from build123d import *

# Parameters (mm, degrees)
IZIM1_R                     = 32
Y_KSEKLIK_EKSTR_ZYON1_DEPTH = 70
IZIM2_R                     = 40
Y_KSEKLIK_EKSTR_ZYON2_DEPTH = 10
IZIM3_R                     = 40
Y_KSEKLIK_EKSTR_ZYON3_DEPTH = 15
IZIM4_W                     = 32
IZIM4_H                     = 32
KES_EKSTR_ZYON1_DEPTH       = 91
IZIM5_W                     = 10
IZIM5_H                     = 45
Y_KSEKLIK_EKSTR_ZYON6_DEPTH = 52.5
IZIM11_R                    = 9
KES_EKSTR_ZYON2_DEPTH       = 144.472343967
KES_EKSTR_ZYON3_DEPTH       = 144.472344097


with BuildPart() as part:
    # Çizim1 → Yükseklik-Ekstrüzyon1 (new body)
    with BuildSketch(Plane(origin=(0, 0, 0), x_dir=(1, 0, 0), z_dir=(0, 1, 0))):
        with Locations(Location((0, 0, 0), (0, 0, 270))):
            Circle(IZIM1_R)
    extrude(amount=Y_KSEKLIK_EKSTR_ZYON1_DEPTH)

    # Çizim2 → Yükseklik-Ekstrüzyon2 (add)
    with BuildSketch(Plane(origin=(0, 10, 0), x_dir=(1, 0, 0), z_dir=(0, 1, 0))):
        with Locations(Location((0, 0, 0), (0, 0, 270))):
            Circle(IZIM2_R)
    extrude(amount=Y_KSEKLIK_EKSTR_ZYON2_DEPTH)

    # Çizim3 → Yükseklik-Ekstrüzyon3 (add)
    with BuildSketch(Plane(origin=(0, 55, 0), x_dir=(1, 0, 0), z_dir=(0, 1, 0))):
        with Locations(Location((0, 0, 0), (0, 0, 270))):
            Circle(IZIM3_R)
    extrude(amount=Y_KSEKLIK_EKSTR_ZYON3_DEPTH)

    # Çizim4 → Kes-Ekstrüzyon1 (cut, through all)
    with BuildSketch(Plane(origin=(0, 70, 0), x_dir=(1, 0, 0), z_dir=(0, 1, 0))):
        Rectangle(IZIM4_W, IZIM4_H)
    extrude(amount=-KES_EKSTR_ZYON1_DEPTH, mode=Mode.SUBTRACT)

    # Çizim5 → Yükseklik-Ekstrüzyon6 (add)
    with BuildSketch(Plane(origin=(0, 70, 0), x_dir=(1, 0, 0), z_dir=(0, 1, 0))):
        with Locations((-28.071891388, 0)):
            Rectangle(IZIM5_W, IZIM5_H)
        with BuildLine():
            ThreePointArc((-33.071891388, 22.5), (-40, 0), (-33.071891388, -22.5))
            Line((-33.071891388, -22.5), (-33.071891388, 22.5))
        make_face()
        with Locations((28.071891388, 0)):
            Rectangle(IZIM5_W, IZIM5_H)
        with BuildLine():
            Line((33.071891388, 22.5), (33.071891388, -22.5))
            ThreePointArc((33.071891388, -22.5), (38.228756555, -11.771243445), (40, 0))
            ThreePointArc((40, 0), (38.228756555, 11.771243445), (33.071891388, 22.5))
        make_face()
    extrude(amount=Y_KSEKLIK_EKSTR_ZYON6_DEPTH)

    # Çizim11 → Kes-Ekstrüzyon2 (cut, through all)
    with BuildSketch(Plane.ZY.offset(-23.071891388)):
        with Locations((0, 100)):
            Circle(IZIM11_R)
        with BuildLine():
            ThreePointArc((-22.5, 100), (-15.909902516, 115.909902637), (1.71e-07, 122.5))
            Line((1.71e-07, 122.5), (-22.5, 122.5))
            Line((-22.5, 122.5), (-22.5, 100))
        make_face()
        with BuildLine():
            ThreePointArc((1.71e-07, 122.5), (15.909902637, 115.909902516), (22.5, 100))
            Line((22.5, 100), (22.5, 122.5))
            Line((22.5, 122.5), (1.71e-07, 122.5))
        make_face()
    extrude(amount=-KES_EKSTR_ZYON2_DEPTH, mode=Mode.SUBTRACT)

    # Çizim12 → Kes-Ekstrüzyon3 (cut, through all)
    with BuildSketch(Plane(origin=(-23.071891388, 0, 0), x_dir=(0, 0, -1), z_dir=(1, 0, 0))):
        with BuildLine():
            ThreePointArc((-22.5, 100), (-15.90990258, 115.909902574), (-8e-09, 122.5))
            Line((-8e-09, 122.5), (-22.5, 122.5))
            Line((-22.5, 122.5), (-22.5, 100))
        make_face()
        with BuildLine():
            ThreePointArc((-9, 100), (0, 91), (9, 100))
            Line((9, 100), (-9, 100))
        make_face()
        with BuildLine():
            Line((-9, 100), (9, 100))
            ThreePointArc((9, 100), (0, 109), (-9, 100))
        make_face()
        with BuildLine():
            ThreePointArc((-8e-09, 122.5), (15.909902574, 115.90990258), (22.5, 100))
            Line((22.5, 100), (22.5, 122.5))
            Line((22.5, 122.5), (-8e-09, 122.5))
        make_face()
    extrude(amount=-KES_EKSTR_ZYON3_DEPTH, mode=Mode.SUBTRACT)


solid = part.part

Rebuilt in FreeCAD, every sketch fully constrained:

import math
import FreeCAD as App
import Part
import Sketcher
from FreeCAD import Vector

doc = App.newDocument("Part")
body = doc.addObject("PartDesign::Body", "Body")

# Sketch on XZ plane
sketch1 = body.newObject("Sketcher::SketchObject", "Sketch")
sketch1.AttachmentSupport = (doc.getObject("XZ_Plane"), [""])
sketch1.MapMode = "FlatFace"
sketch1.addGeometry(Part.Circle(Vector(0, 0, 0), Vector(0, 0, 1), 32), False)
sketch1.addConstraint(Sketcher.Constraint("Coincident", 0, 3, -1, 1))
sketch1.addConstraint(Sketcher.Constraint("Diameter", 0, 64.0))
pad1 = body.newObject("PartDesign::Pad", "Pad")
pad1.Profile = sketch1
pad1.Length = 70
pad1.Reversed = True

# Sketch on XZ plane
sketch2 = body.newObject("Sketcher::SketchObject", "Sketch001")
sketch2.AttachmentSupport = (doc.getObject("XZ_Plane"), [""])
sketch2.MapMode = "FlatFace"
sketch2.AttachmentOffset = App.Placement(Vector(0, 0, -10), App.Rotation())
sketch2.addGeometry(Part.Circle(Vector(0, 0, 0), Vector(0, 0, 1), 40), False)
sketch2.addConstraint(Sketcher.Constraint("Coincident", 0, 3, -1, 1))
sketch2.addConstraint(Sketcher.Constraint("Diameter", 0, 80.0))
pad2 = body.newObject("PartDesign::Pad", "Pad001")
pad2.Profile = sketch2
pad2.Length = 10
pad2.Reversed = True

# Sketch on XZ plane
sketch3 = body.newObject("Sketcher::SketchObject", "Sketch002")
sketch3.AttachmentSupport = (doc.getObject("XZ_Plane"), [""])
sketch3.MapMode = "FlatFace"
sketch3.AttachmentOffset = App.Placement(Vector(0, 0, -55), App.Rotation())
sketch3.addGeometry(Part.Circle(Vector(0, 0, 0), Vector(0, 0, 1), 40), False)
sketch3.addConstraint(Sketcher.Constraint("Coincident", 0, 3, -1, 1))
sketch3.addConstraint(Sketcher.Constraint("Diameter", 0, 80.0))
pad3 = body.newObject("PartDesign::Pad", "Pad002")
pad3.Profile = sketch3
pad3.Length = 15
pad3.Reversed = True

# Sketch on XZ plane
sketch4 = body.newObject("Sketcher::SketchObject", "Sketch003")
sketch4.AttachmentSupport = (doc.getObject("XZ_Plane"), [""])
sketch4.MapMode = "FlatFace"
sketch4.AttachmentOffset = App.Placement(Vector(0, 0, -70), App.Rotation())
sketch4.addGeometry(Part.LineSegment(Vector(-16, -16, 0), Vector(-16, 16, 0)), False)
sketch4.addGeometry(Part.LineSegment(Vector(-16, 16, 0), Vector(16, 16, 0)), False)
sketch4.addGeometry(Part.LineSegment(Vector(16, 16, 0), Vector(16, -16, 0)), False)
sketch4.addGeometry(Part.LineSegment(Vector(16, -16, 0), Vector(-16, -16, 0)), False)
sketch4.addConstraint(Sketcher.Constraint("Coincident", 0, 2, 1, 1))
sketch4.addConstraint(Sketcher.Constraint("Coincident", 1, 2, 2, 1))
sketch4.addConstraint(Sketcher.Constraint("Coincident", 2, 2, 3, 1))
sketch4.addConstraint(Sketcher.Constraint("Coincident", 3, 2, 0, 1))
sketch4.addConstraint(Sketcher.Constraint("Vertical", 0))
sketch4.addConstraint(Sketcher.Constraint("Horizontal", 1))
sketch4.addConstraint(Sketcher.Constraint("Vertical", 2))
sketch4.addConstraint(Sketcher.Constraint("Horizontal", 3))
sketch4.addConstraint(Sketcher.Constraint("Symmetric", 0, 2, 2, 2, -1, 1))
sketch4.addConstraint(Sketcher.Constraint("Equal", 3, 0))
sketch4.addConstraint(Sketcher.Constraint("DistanceX", 1, 1, 1, 2, 32.0))
pocket1 = body.newObject("PartDesign::Pocket", "Pocket")
pocket1.Profile = sketch4
pocket1.Type = "ThroughAll"
pocket1.Reversed = True

# Sketch on XZ plane
sketch5 = body.newObject("Sketcher::SketchObject", "Sketch004")
sketch5.AttachmentSupport = (doc.getObject("XZ_Plane"), [""])
sketch5.MapMode = "FlatFace"
sketch5.AttachmentOffset = App.Placement(Vector(0, 0, -70), App.Rotation())
sketch5.addGeometry(Part.LineSegment(Vector(-33, 22, 0), Vector(-23, 22, 0)), False)
sketch5.addGeometry(Part.LineSegment(Vector(-23, 22, 0), Vector(-23, -22, 0)), False)
sketch5.addGeometry(Part.LineSegment(Vector(-23, -22, 0), Vector(-33, -22, 0)), False)
sketch5.addGeometry(Part.ArcOfCircle(Part.Circle(Vector(0, 0, 0), Vector(0, 0, 1), 40), math.radians(146), math.radians(214)), False)
sketch5.addGeometry(Part.LineSegment(Vector(23, -22, 0), Vector(23, 22, 0)), False)
sketch5.addGeometry(Part.LineSegment(Vector(23, 22, 0), Vector(33, 22, 0)), False)
sketch5.addGeometry(Part.ArcOfCircle(Part.Circle(Vector(0, 0, 0), Vector(0, 0, 1), 40), math.radians(0), math.radians(34)), False)
sketch5.addGeometry(Part.ArcOfCircle(Part.Circle(Vector(0, 0, 0), Vector(0, 0, 1), 40), math.radians(-34), math.radians(0)), False)
sketch5.addGeometry(Part.LineSegment(Vector(33, -22, 0), Vector(23, -22, 0)), False)
sketch5.addConstraint(Sketcher.Constraint("Coincident", 0, 2, 1, 1))
sketch5.addConstraint(Sketcher.Constraint("Coincident", 1, 2, 2, 1))
sketch5.addConstraint(Sketcher.Constraint("Coincident", 2, 2, 3, 2))
sketch5.addConstraint(Sketcher.Constraint("Coincident", 3, 1, 0, 1))
sketch5.addConstraint(Sketcher.Constraint("Coincident", 4, 2, 5, 1))
sketch5.addConstraint(Sketcher.Constraint("Coincident", 5, 2, 6, 2))
sketch5.addConstraint(Sketcher.Constraint("Tangent", 6, 1, 7, 2))
sketch5.addConstraint(Sketcher.Constraint("Coincident", 7, 1, 8, 1))
sketch5.addConstraint(Sketcher.Constraint("Coincident", 8, 2, 4, 1))
sketch5.addConstraint(Sketcher.Constraint("Horizontal", 0))
sketch5.addConstraint(Sketcher.Constraint("Vertical", 1))
sketch5.addConstraint(Sketcher.Constraint("Horizontal", 2))
sketch5.addConstraint(Sketcher.Constraint("Vertical", 4))
sketch5.addConstraint(Sketcher.Constraint("Horizontal", 5))
sketch5.addConstraint(Sketcher.Constraint("Horizontal", 8))
sketch5.addConstraint(Sketcher.Constraint("Coincident", 3, 3, -1, 1))
sketch5.addConstraint(Sketcher.Constraint("Coincident", 6, 3, -1, 1))
sketch5.addConstraint(Sketcher.Constraint("Equal", 3, 6))
sketch5.addConstraint(Sketcher.Constraint("Equal", 6, 7))
sketch5.addConstraint(Sketcher.Constraint("Symmetric", 1, 2, 4, 2, -1, 1))
sketch5.addConstraint(Sketcher.Constraint("PointOnObject", 6, 1, -1))
sketch5.addConstraint(Sketcher.Constraint("Horizontal", 3, 1, 4, 2))
sketch5.addConstraint(Sketcher.Constraint("Horizontal", 2, 2, 7, 1))
sketch5.addConstraint(Sketcher.Constraint("Radius", 3, 40.0))
sketch5.addConstraint(Sketcher.Constraint("DistanceX", 0, 1, 0, 2, 10.0))
sketch5.addConstraint(Sketcher.Constraint("DistanceY", 1, 2, 1, 1, 45.0))
pad4 = body.newObject("PartDesign::Pad", "Pad003")
pad4.Profile = sketch5
pad4.Length = 52.5
pad4.Reversed = True

# Sketch on YZ plane
sketch6 = body.newObject("Sketcher::SketchObject", "Sketch005")
sketch6.AttachmentSupport = (doc.getObject("YZ_Plane"), [""])
sketch6.MapMode = "FlatFace"
sketch6.AttachmentOffset = App.Placement(Vector(0, 0, 23.071891), App.Rotation())
sketch6.addGeometry(Part.Circle(Vector(100, 0, 0), Vector(0, 0, 1), 9), False)
sketch6.addGeometry(Part.ArcOfCircle(Part.Circle(Vector(100, 0, 0), Vector(0, 0, 1), 23), math.radians(-90), math.radians(0)), False)
sketch6.addGeometry(Part.LineSegment(Vector(122, 0, 0), Vector(122, -22, 0)), False)
sketch6.addGeometry(Part.LineSegment(Vector(122, -22, 0), Vector(100, -22, 0)), False)
sketch6.addGeometry(Part.ArcOfCircle(Part.Circle(Vector(100, 0, 0), Vector(0, 0, 1), 23), math.radians(0), math.radians(90)), False)
sketch6.addGeometry(Part.LineSegment(Vector(100, 22, 0), Vector(122, 22, 0)), False)
sketch6.addGeometry(Part.LineSegment(Vector(122, 22, 0), Vector(122, 0, 0)), False)
sketch6.addConstraint(Sketcher.Constraint("Tangent", 1, 2, 2, 1))
sketch6.addConstraint(Sketcher.Constraint("Coincident", 2, 2, 3, 1))
sketch6.addConstraint(Sketcher.Constraint("Tangent", 3, 2, 1, 1))
sketch6.addConstraint(Sketcher.Constraint("Tangent", 4, 2, 5, 1))
sketch6.addConstraint(Sketcher.Constraint("Coincident", 5, 2, 6, 1))
sketch6.addConstraint(Sketcher.Constraint("Tangent", 6, 2, 4, 1))
sketch6.addConstraint(Sketcher.Constraint("Vertical", 2))
sketch6.addConstraint(Sketcher.Constraint("Horizontal", 3))
sketch6.addConstraint(Sketcher.Constraint("Horizontal", 5))
sketch6.addConstraint(Sketcher.Constraint("Vertical", 6))
sketch6.addConstraint(Sketcher.Constraint("Coincident", 1, 3, 0, 3))
sketch6.addConstraint(Sketcher.Constraint("Coincident", 4, 3, 0, 3))
sketch6.addConstraint(Sketcher.Constraint("Equal", 1, 4))
sketch6.addConstraint(Sketcher.Constraint("PointOnObject", 0, 3, -1))
sketch6.addConstraint(Sketcher.Constraint("Diameter", 0, 18.0))
sketch6.addConstraint(Sketcher.Constraint("Radius", 1, 22.5))
sketch6.addConstraint(Sketcher.Constraint("DistanceX", -1, 1, 0, 3, 100.0))
pocket2 = body.newObject("PartDesign::Pocket", "Pocket001")
pocket2.Profile = sketch6
pocket2.Type = "ThroughAll"
pocket2.Reversed = True

# Sketch on YZ plane
sketch7 = body.newObject("Sketcher::SketchObject", "Sketch006")
sketch7.AttachmentSupport = (doc.getObject("YZ_Plane"), [""])
sketch7.MapMode = "FlatFace"
sketch7.AttachmentOffset = App.Placement(Vector(0, 0, -23.071891), App.Rotation())
sketch7.addGeometry(Part.ArcOfCircle(Part.Circle(Vector(100, 0, 0), Vector(0, 0, 1), 22), math.radians(0), math.radians(90)), False)
sketch7.addGeometry(Part.LineSegment(Vector(122, 0, 0), Vector(122, 22, 0)), False)
sketch7.addGeometry(Part.LineSegment(Vector(122, 22, 0), Vector(100, 22, 0)), False)
sketch7.addGeometry(Part.Circle(Vector(100, 0, 0), Vector(0, 0, 1), 9), False)
sketch7.addGeometry(Part.ArcOfCircle(Part.Circle(Vector(100, 0, 0), Vector(0, 0, 1), 22), math.radians(-90), math.radians(0)), False)
sketch7.addGeometry(Part.LineSegment(Vector(100, -22, 0), Vector(122, -22, 0)), False)
sketch7.addGeometry(Part.LineSegment(Vector(122, -22, 0), Vector(122, 0, 0)), False)
sketch7.addConstraint(Sketcher.Constraint("Tangent", 0, 1, 1, 1))
sketch7.addConstraint(Sketcher.Constraint("Coincident", 1, 2, 2, 1))
sketch7.addConstraint(Sketcher.Constraint("Tangent", 2, 2, 0, 2))
sketch7.addConstraint(Sketcher.Constraint("Tangent", 4, 1, 5, 1))
sketch7.addConstraint(Sketcher.Constraint("Coincident", 5, 2, 6, 1))
sketch7.addConstraint(Sketcher.Constraint("Tangent", 6, 2, 4, 2))
sketch7.addConstraint(Sketcher.Constraint("Vertical", 1))
sketch7.addConstraint(Sketcher.Constraint("Horizontal", 2))
sketch7.addConstraint(Sketcher.Constraint("Horizontal", 5))
sketch7.addConstraint(Sketcher.Constraint("Vertical", 6))
sketch7.addConstraint(Sketcher.Constraint("Coincident", 3, 3, 0, 3))
sketch7.addConstraint(Sketcher.Constraint("Coincident", 4, 3, 0, 3))
sketch7.addConstraint(Sketcher.Constraint("Equal", 0, 4))
sketch7.addConstraint(Sketcher.Constraint("PointOnObject", 0, 3, -1))
sketch7.addConstraint(Sketcher.Constraint("Diameter", 3, 18.0))
sketch7.addConstraint(Sketcher.Constraint("Radius", 0, 22.5))
sketch7.addConstraint(Sketcher.Constraint("DistanceX", -1, 1, 0, 3, 100.0))
pocket3 = body.newObject("PartDesign::Pocket", "Pocket002")
pocket3.Profile = sketch7
pocket3.Type = "ThroughAll"

doc.recompute()
